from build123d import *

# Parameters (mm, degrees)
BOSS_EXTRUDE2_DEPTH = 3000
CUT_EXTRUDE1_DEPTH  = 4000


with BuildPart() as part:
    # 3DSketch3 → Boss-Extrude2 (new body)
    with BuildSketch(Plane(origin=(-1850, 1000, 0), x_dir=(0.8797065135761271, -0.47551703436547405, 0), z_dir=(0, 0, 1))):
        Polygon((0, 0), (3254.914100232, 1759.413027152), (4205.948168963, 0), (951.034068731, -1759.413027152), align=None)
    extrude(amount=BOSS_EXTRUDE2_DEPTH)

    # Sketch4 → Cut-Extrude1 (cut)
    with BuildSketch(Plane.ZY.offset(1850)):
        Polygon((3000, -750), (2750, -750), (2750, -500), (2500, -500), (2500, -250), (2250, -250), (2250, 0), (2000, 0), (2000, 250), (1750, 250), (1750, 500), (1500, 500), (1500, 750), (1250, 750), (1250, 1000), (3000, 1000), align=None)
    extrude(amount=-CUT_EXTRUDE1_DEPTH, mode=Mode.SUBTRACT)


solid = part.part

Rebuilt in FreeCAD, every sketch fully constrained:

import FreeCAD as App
import Part
import Sketcher
from FreeCAD import Vector
Q = App.Units.Quantity


def add_polygon(sketch, points):
    """Adds a closed chain of lines whose ends are joined by coincident constraints."""
    first, n = sketch.GeometryCount, len(points)
    for a, b in zip(points, points[1:] + points[:1]):
        sketch.addGeometry(Part.LineSegment(App.Vector(*a, 0), App.Vector(*b, 0)), False)
    for i in range(n):
        sketch.addConstraint(Sketcher.Constraint("Coincident", first + i, 2, first + (i + 1) % n, 1))

doc = App.newDocument("Part")
body = doc.addObject("PartDesign::Body", "Body")

# Sketch on XY plane
sketch1 = body.newObject("Sketcher::SketchObject", "Sketch")
sketch1.AttachmentSupport = (doc.getObject("XY_Plane"), [""])
sketch1.MapMode = "FlatFace"
add_polygon(sketch1, [(1850, 1000), (-1850, 1000), (-1850, -1000), (1850, -1000)])  # lines 0-3
sketch1.addConstraint([
    Sketcher.Constraint("Horizontal", 0),
    Sketcher.Constraint("Vertical", 1),
    Sketcher.Constraint("Horizontal", 2),
    Sketcher.Constraint("Vertical", 3),
    Sketcher.Constraint("Symmetric", 0, 2, 2, 2, -1, 1),
    Sketcher.Constraint("DistanceX", 0, 2, 0, 1, Q("3700.000001 mm")),
    Sketcher.Constraint("DistanceY", 1, 2, 1, 1, Q("2000 mm")),
])
pad1 = body.newObject("PartDesign::Pad", "Pad")
pad1.Profile = sketch1
pad1.Length = 3000

# Sketch on YZ plane
sketch2 = body.newObject("Sketcher::SketchObject", "Sketch001")
sketch2.AttachmentSupport = (doc.getObject("YZ_Plane"), [""])
sketch2.MapMode = "FlatFace"
sketch2.AttachmentOffset = App.Placement(Vector(0, 0, -1850), App.Rotation())
add_polygon(sketch2, [(-750, 2750), (-750, 3000), (1000, 3000), (1000, 1250), (750, 1250), (750, 1500), (500, 1500), (500, 1750), (250, 1750), (250, 2000), (0, 2000), (0, 2250), (-250, 2250), (-250, 2500), (-500, 2500), (-500, 2750)])  # lines 0-15
sketch2.addConstraint([
    Sketcher.Constraint("Vertical", 0),
    Sketcher.Constraint("Horizontal", 1),
    Sketcher.Constraint("Vertical", 2),
    Sketcher.Constraint("Horizontal", 3),
    Sketcher.Constraint("Vertical", 4),
    Sketcher.Constraint("Horizontal", 5),
    Sketcher.Constraint("Vertical", 6),
    Sketcher.Constraint("Horizontal", 7),
    Sketcher.Constraint("Vertical", 8),
    Sketcher.Constraint("Horizontal", 9),
    Sketcher.Constraint("Vertical", 10),
    Sketcher.Constraint("Horizontal", 11),
    Sketcher.Constraint("Vertical", 12),
    Sketcher.Constraint("Horizontal", 13),
    Sketcher.Constraint("Vertical", 14),
    Sketcher.Constraint("Horizontal", 15),
    Sketcher.Constraint("PointOnObject", 9, 2, -2),
    Sketcher.Constraint("Equal", 3, 5),
    Sketcher.Constraint("Equal", 5, 7),
    Sketcher.Constraint("Equal", 7, 9),
    Sketcher.Constraint("Equal", 9, 11),
    Sketcher.Constraint("Equal", 11, 13),
    Sketcher.Constraint("Equal", 13, 15),
    Sketcher.Constraint("Equal", 15, 0),
    Sketcher.Constraint("Equal", 1, 2),
    Sketcher.Constraint("Equal", 0, 4),
    Sketcher.Constraint("Equal", 4, 6),
    Sketcher.Constraint("Equal", 6, 8),
    Sketcher.Constraint("Equal", 8, 10),
    Sketcher.Constraint("Equal", 10, 12),
    Sketcher.Constraint("DistanceX", 1, 1, 1, 2, Q("1750 mm")),
    Sketcher.Constraint("DistanceY", -1, 1, 0, 2, Q("3000 mm")),
])
pocket1 = body.newObject("PartDesign::Pocket", "Pocket")
pocket1.Profile = sketch2
pocket1.Length = 4000
pocket1.Reversed = True

doc.recompute()
